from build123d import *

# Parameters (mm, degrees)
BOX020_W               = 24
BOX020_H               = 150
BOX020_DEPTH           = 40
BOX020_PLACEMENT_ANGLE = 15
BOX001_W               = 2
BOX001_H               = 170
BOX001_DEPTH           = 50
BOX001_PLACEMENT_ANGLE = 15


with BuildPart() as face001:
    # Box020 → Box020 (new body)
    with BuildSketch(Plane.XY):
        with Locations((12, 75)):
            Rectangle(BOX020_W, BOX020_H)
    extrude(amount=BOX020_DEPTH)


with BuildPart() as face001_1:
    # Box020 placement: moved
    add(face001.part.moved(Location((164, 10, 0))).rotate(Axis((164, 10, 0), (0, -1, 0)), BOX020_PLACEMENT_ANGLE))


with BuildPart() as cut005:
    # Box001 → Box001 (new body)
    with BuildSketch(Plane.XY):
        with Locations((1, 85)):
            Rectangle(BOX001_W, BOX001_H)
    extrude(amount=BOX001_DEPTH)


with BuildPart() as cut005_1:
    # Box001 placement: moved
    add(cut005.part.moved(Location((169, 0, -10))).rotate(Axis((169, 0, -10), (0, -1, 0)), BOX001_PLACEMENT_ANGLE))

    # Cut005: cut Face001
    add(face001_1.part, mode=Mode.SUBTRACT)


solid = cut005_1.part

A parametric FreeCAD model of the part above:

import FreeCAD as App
import Part
import Sketcher
from FreeCAD import Vector
Q = App.Units.Quantity

doc = App.newDocument("Part")
body = doc.addObject("PartDesign::Body", "Body")

sketch1 = body.newObject("Sketcher::SketchObject", "Sketch")
sketch1.AttachmentSupport = (doc.getObject("XY_Plane"), [""])
sketch1.MapMode = "FlatFace"
sketch1.addGeometry([
    Part.LineSegment(Vector(0, 150, 0), Vector(0, 0, 0)),
    Part.LineSegment(Vector(0, 0, 0), Vector(24, 0, 0)),
    Part.LineSegment(Vector(24, 0, 0), Vector(24, 150, 0)),
    Part.LineSegment(Vector(24, 150, 0), Vector(0, 150, 0)),
], False)
sketch1.addConstraint([
    Sketcher.Constraint("Coincident", 0, 2, 1, 1),
    Sketcher.Constraint("Coincident", 1, 2, 2, 1),
    Sketcher.Constraint("Coincident", 2, 2, 3, 1),
    Sketcher.Constraint("Coincident", 3, 2, 0, 1),
    Sketcher.Constraint("Vertical", 0),
    Sketcher.Constraint("Horizontal", 1),
    Sketcher.Constraint("Vertical", 2),
    Sketcher.Constraint("Horizontal", 3),
    Sketcher.Constraint("Coincident", 0, 2, -1, 1),
    Sketcher.Constraint("DistanceX", 1, 1, 1, 2, Q("24 mm")),
    Sketcher.Constraint("DistanceY", 0, 2, 0, 1, Q("150 mm")),
])
pad1 = body.newObject("PartDesign::Pad", "Pad")
pad1.Profile = sketch1
pad1.Length = 40
body2 = doc.addObject("PartDesign::Body", "Body001")
doc.recompute()

body.Placement = App.Placement(Vector(164, 10, 0), App.Rotation(Vector(0, -1, 0), 15))
boolean = body2.newObject("PartDesign::Boolean", "Boolean")
boolean.Type = "Fuse"
boolean.addObjects([body])
body3 = doc.addObject("PartDesign::Body", "Body002")

sketch2 = body3.newObject("Sketcher::SketchObject", "Sketch001")
sketch2.AttachmentSupport = (doc.getObject("XY_Plane002"), [""])
sketch2.MapMode = "FlatFace"
sketch2.addGeometry([
    Part.LineSegment(Vector(0, 170, 0), Vector(0, 0, 0)),
    Part.LineSegment(Vector(0, 0, 0), Vector(2, 0, 0)),
    Part.LineSegment(Vector(2, 0, 0), Vector(2, 170, 0)),
    Part.LineSegment(Vector(2, 170, 0), Vector(0, 170, 0)),
], False)
sketch2.addConstraint([
    Sketcher.Constraint("Coincident", 0, 2, 1, 1),
    Sketcher.Constraint("Coincident", 1, 2, 2, 1),
    Sketcher.Constraint("Coincident", 2, 2, 3, 1),
    Sketcher.Constraint("Coincident", 3, 2, 0, 1),
    Sketcher.Constraint("Vertical", 0),
    Sketcher.Constraint("Horizontal", 1),
    Sketcher.Constraint("Vertical", 2),
    Sketcher.Constraint("Horizontal", 3),
    Sketcher.Constraint("Coincident", 0, 2, -1, 1),
    Sketcher.Constraint("DistanceX", 1, 1, 1, 2, Q("2 mm")),
    Sketcher.Constraint("DistanceY", 0, 2, 0, 1, Q("170 mm")),
])
pad2 = body3.newObject("PartDesign::Pad", "Pad001")
pad2.Profile = sketch2
pad2.Length = 50
body4 = doc.addObject("PartDesign::Body", "Body003")
doc.recompute()

body3.Placement = App.Placement(Vector(169, 0, -10), App.Rotation(Vector(0, -1, 0), 15))
boolean2 = body4.newObject("PartDesign::Boolean", "Boolean001")
boolean2.Type = "Fuse"
boolean2.addObjects([body3])
doc.recompute()

boolean3 = body4.newObject("PartDesign::Boolean", "Boolean002")
boolean3.Type = "Cut"
boolean3.addObjects([body2])

doc.recompute()
